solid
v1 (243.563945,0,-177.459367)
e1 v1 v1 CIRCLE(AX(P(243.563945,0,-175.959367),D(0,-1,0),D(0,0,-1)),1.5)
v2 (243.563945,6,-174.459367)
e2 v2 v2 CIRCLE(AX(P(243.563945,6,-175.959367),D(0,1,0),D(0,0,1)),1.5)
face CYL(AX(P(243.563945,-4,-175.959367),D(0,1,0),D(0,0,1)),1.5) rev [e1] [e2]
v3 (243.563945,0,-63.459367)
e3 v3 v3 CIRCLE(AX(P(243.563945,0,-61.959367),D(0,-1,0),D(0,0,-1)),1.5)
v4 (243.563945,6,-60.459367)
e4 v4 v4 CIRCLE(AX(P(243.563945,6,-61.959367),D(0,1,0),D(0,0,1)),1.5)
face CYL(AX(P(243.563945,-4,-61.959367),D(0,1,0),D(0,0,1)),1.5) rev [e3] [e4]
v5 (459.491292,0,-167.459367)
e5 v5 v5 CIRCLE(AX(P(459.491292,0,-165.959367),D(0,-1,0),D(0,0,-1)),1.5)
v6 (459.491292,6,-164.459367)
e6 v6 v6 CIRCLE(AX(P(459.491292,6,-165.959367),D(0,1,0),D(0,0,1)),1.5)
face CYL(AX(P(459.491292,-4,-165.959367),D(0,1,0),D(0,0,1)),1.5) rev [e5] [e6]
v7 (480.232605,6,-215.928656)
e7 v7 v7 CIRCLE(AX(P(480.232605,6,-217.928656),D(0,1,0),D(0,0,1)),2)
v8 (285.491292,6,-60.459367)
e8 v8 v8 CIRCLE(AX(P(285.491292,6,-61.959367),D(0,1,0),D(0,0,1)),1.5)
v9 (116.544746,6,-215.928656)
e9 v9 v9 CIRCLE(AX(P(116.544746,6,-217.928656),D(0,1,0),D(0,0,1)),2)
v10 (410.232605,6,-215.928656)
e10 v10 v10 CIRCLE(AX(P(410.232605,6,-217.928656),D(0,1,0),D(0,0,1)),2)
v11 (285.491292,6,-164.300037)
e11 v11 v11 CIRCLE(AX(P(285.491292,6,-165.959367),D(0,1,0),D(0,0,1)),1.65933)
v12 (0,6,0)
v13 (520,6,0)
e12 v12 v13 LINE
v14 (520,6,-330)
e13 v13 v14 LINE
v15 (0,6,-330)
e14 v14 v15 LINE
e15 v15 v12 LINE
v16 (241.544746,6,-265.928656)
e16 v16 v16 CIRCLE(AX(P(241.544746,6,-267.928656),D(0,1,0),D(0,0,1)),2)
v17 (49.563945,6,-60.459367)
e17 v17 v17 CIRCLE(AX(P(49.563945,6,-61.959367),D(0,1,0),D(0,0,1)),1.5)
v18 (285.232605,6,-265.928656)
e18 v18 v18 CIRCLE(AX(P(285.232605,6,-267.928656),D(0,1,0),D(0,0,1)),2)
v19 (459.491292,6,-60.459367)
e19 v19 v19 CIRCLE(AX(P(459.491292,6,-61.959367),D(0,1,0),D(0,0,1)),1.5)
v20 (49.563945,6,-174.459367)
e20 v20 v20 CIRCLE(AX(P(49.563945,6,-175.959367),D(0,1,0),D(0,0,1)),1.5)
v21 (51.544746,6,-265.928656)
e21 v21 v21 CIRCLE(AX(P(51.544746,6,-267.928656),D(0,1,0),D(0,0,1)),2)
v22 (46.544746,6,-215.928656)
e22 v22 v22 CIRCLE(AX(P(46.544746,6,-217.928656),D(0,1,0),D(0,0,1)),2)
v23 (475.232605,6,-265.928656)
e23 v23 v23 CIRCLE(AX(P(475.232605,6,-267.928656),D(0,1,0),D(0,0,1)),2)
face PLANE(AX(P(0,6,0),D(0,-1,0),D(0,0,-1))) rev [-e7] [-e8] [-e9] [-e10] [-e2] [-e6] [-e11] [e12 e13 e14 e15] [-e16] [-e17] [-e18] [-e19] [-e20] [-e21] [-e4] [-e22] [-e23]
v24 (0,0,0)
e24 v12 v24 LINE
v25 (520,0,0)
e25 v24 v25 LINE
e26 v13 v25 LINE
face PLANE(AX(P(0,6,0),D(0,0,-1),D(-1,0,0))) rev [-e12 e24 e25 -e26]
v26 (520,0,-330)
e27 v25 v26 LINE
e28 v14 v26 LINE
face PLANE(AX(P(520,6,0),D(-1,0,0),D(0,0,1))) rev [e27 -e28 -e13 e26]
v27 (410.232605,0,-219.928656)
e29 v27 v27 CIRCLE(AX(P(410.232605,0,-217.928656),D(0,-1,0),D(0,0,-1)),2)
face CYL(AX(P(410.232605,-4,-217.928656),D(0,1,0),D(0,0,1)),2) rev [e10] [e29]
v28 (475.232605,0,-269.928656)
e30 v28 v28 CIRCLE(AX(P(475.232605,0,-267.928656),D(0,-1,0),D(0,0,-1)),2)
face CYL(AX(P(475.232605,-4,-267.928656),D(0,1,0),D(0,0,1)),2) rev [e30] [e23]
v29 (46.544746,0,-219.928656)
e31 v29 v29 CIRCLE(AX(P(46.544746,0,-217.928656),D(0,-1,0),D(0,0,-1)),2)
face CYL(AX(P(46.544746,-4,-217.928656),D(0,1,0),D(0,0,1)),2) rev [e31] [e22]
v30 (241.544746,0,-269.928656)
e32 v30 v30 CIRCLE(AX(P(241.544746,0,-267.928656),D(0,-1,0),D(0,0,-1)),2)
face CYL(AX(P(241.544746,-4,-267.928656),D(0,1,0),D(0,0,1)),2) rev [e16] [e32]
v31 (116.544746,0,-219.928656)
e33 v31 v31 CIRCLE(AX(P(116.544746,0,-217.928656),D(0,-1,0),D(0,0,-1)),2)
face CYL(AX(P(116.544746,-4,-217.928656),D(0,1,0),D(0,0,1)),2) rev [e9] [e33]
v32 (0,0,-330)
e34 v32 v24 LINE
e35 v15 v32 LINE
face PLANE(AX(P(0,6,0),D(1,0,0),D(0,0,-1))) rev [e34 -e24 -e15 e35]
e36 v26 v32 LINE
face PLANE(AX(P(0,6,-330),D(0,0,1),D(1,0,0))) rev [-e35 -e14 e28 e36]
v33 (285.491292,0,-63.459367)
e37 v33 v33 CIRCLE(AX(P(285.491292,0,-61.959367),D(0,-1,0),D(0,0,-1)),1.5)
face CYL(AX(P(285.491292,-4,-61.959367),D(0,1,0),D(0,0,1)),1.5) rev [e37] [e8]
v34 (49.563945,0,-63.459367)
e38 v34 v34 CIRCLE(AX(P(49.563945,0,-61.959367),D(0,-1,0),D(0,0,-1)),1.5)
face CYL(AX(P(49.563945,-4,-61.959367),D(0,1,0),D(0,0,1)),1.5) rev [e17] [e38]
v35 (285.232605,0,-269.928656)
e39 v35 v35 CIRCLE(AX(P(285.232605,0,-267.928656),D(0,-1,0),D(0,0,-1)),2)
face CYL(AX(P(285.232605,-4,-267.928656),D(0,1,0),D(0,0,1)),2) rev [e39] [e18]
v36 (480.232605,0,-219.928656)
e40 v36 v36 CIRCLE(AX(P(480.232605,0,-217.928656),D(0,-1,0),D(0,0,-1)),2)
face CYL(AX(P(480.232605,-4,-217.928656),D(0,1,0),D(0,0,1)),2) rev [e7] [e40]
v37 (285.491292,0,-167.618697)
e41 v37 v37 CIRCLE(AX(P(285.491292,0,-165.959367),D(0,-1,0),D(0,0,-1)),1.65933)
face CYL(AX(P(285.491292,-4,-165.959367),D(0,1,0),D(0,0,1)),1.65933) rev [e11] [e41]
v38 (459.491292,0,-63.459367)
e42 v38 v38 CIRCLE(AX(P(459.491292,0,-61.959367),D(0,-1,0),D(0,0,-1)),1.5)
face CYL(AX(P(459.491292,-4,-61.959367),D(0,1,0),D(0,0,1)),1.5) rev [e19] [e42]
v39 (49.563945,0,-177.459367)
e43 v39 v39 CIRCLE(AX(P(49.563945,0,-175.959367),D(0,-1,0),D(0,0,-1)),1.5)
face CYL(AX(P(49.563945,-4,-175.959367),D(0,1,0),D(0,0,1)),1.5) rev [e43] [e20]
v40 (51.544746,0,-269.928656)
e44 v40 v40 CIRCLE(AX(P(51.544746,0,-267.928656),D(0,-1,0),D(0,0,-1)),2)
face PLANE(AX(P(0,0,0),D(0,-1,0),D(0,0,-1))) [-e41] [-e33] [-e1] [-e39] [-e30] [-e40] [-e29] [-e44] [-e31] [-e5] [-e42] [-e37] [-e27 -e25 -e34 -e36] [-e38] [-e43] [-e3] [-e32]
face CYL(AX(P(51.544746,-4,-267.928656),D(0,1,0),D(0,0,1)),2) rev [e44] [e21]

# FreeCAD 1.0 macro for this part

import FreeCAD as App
import Part
import Sketcher
Q = App.Units.Quantity

doc = App.newDocument("Part")
body = doc.addObject("PartDesign::Body", "Body")

sketch1 = body.newObject("Sketcher::SketchObject", "Sketch")
sketch1.AttachmentSupport = (doc.getObject("XZ_Plane"), [""])
sketch1.MapMode = "FlatFace"
sketch1.addGeometry(Part.LineSegment(App.Vector(0, -330, 0), App.Vector(0, 0, 0)), False)
sketch1.addGeometry(Part.LineSegment(App.Vector(0, 0, 0), App.Vector(520, 0, 0)), False)
sketch1.addGeometry(Part.LineSegment(App.Vector(520, 0, 0), App.Vector(520, -330, 0)), False)
sketch1.addGeometry(Part.LineSegment(App.Vector(520, -330, 0), App.Vector(0, -330, 0)), False)
sketch1.addConstraint(Sketcher.Constraint("Coincident", 0, 2, 1, 1))
sketch1.addConstraint(Sketcher.Constraint("Coincident", 1, 2, 2, 1))
sketch1.addConstraint(Sketcher.Constraint("Coincident", 2, 2, 3, 1))
sketch1.addConstraint(Sketcher.Constraint("Coincident", 3, 2, 0, 1))
sketch1.addConstraint(Sketcher.Constraint("Vertical", 0))
sketch1.addConstraint(Sketcher.Constraint("Horizontal", 1))
sketch1.addConstraint(Sketcher.Constraint("Vertical", 2))
sketch1.addConstraint(Sketcher.Constraint("Horizontal", 3))
sketch1.addConstraint(Sketcher.Constraint("Coincident", 0, 2, -1, 1))
sketch1.addConstraint(Sketcher.Constraint("DistanceX", 1, 1, 1, 2, Q("520 mm")))
sketch1.addConstraint(Sketcher.Constraint("DistanceY", 0, 1, 0, 2, Q("330 mm")))
pad1 = body.newObject("PartDesign::Pad", "Pad")
pad1.Profile = sketch1
pad1.Length = 6
pad1.Reversed = True

sketch2 = body.newObject("Sketcher::SketchObject", "Sketch001")
sketch2.AttachmentSupport = (doc.getObject("XZ_Plane"), [""])
sketch2.MapMode = "FlatFace"
sketch2.AttachmentOffset = App.Placement(App.Vector(0, 0, -6), App.Rotation())
sketch2.addGeometry(Part.Circle(App.Vector(475.2, -267.9, 0), App.Vector(0, 0, 1), 2), False)
sketch2.addGeometry(Part.Circle(App.Vector(480.2, -217.9, 0), App.Vector(0, 0, 1), 2), False)
sketch2.addGeometry(Part.Circle(App.Vector(410.2, -217.9, 0), App.Vector(0, 0, 1), 2), False)
sketch2.addGeometry(Part.Circle(App.Vector(285.2, -267.9, 0), App.Vector(0, 0, 1), 2), False)
sketch2.addGeometry(Part.Circle(App.Vector(241.5, -267.9, 0), App.Vector(0, 0, 1), 2), False)
sketch2.addGeometry(Part.Circle(App.Vector(51.5, -267.9, 0), App.Vector(0, 0, 1), 2), False)
sketch2.addGeometry(Part.Circle(App.Vector(46.5, -217.9, 0), App.Vector(0, 0, 1), 2), False)
sketch2.addGeometry(Part.Circle(App.Vector(116.5, -217.9, 0), App.Vector(0, 0, 1), 2), False)
sketch2.addGeometry(Part.Circle(App.Vector(459.5, -166, 0), App.Vector(0, 0, 1), 1.5), False)
sketch2.addGeometry(Part.Circle(App.Vector(459.5, -62, 0), App.Vector(0, 0, 1), 1.5), False)
sketch2.addGeometry(Part.Circle(App.Vector(285.5, -62, 0), App.Vector(0, 0, 1), 1.5), False)
sketch2.addGeometry(Part.Circle(App.Vector(285.5, -166, 0), App.Vector(0, 0, 1), 1.7), False)
sketch2.addGeometry(Part.Circle(App.Vector(243.6, -176, 0), App.Vector(0, 0, 1), 1.5), False)
sketch2.addGeometry(Part.Circle(App.Vector(243.6, -62, 0), App.Vector(0, 0, 1), 1.5), False)
sketch2.addGeometry(Part.Circle(App.Vector(49.6, -62, 0), App.Vector(0, 0, 1), 1.5), False)
sketch2.addGeometry(Part.Circle(App.Vector(49.6, -176, 0), App.Vector(0, 0, 1), 1.5), False)
sketch2.addConstraint(Sketcher.Constraint("Equal", 0, 1))
sketch2.addConstraint(Sketcher.Constraint("Equal", 1, 2))
sketch2.addConstraint(Sketcher.Constraint("Equal", 2, 3))
sketch2.addConstraint(Sketcher.Constraint("Equal", 3, 4))
sketch2.addConstraint(Sketcher.Constraint("Equal", 4, 5))
sketch2.addConstraint(Sketcher.Constraint("Equal", 5, 6))
sketch2.addConstraint(Sketcher.Constraint("Equal", 6, 7))
sketch2.addConstraint(Sketcher.Constraint("Equal", 8, 9))
sketch2.addConstraint(Sketcher.Constraint("Equal", 9, 10))
sketch2.addConstraint(Sketcher.Constraint("Equal", 10, 12))
sketch2.addConstraint(Sketcher.Constraint("Equal", 12, 13))
sketch2.addConstraint(Sketcher.Constraint("Equal", 13, 14))
sketch2.addConstraint(Sketcher.Constraint("Equal", 14, 15))
sketch2.addConstraint(Sketcher.Constraint("Horizontal", 1, 3, 2, 3))
sketch2.addConstraint(Sketcher.Constraint("Horizontal", 0, 3, 3, 3))
sketch2.addConstraint(Sketcher.Constraint("Horizontal", 3, 3, 4, 3))
sketch2.addConstraint(Sketcher.Constraint("Horizontal", 4, 3, 5, 3))
sketch2.addConstraint(Sketcher.Constraint("Horizontal", 2, 3, 6, 3))
sketch2.addConstraint(Sketcher.Constraint("Horizontal", 6, 3, 7, 3))
sketch2.addConstraint(Sketcher.Constraint("Horizontal", 9, 3, 10, 3))
sketch2.addConstraint(Sketcher.Constraint("Horizontal", 8, 3, 11, 3))
sketch2.addConstraint(Sketcher.Constraint("Horizontal", 10, 3, 13, 3))
sketch2.addConstraint(Sketcher.Constraint("Horizontal", 13, 3, 14, 3))
sketch2.addConstraint(Sketcher.Constraint("Horizontal", 12, 3, 15, 3))
sketch2.addConstraint(Sketcher.Constraint("Vertical", 8, 3, 9, 3))
sketch2.addConstraint(Sketcher.Constraint("Vertical", 10, 3, 11, 3))
sketch2.addConstraint(Sketcher.Constraint("Vertical", 12, 3, 13, 3))
sketch2.addConstraint(Sketcher.Constraint("Vertical", 14, 3, 15, 3))
sketch2.addConstraint(Sketcher.Constraint("Diameter", 0, Q("4 mm")))
sketch2.addConstraint(Sketcher.Constraint("Diameter", 8, Q("3 mm")))
sketch2.addConstraint(Sketcher.Constraint("DistanceX", 0, 3, 1, 3, Q("5 mm")))
sketch2.addConstraint(Sketcher.Constraint("DistanceY", 0, 3, 1, 3, Q("50 mm")))
sketch2.addConstraint(Sketcher.Constraint("DistanceX", 2, 3, 1, 3, Q("70 mm")))
sketch2.addConstraint(Sketcher.Constraint("DistanceX", 3, 3, 2, 3, Q("125 mm")))
sketch2.addConstraint(Sketcher.Constraint("DistanceX", 5, 3, 4, 3, Q("190 mm")))
sketch2.addConstraint(Sketcher.Constraint("DistanceX", 6, 3, 5, 3, Q("5 mm")))
sketch2.addConstraint(Sketcher.Constraint("DistanceX", 6, 3, 7, 3, Q("70 mm")))
sketch2.addConstraint(Sketcher.Constraint("DistanceY", 8, 3, 9, 3, Q("104 mm")))
sketch2.addConstraint(Sketcher.Constraint("DistanceX", 10, 3, 9, 3, Q("174 mm")))
sketch2.addConstraint(Sketcher.Constraint("DistanceY", 12, 3, 11, 3, Q("10 mm")))
sketch2.addConstraint(Sketcher.Constraint("DistanceX", 14, 3, 13, 3, Q("194 mm")))
sketch2.addConstraint(Sketcher.Constraint("Diameter", 11, Q("3.318661 mm")))
sketch2.addConstraint(Sketcher.Constraint("DistanceX", 4, 3, 12, 3, Q("2.0192 mm")))
sketch2.addConstraint(Sketcher.Constraint("DistanceX", -1, 1, 8, 3, Q("459.491292 mm")))
sketch2.addConstraint(Sketcher.Constraint("DistanceX", 4, 3, 3, 3, Q("43.687859 mm")))
sketch2.addConstraint(Sketcher.Constraint("DistanceY", 1, 3, 8, 3, Q("51.969289 mm")))
sketch2.addConstraint(Sketcher.Constraint("DistanceX", -1, 1, 0, 3, Q("475.232605 mm")))
sketch2.addConstraint(Sketcher.Constraint("DistanceY", 0, 3, -1, 1, Q("267.928656 mm")))
pocket1 = body.newObject("PartDesign::Pocket", "Pocket")
pocket1.Profile = sketch2
pocket1.Length = 10
pocket1.Reversed = True

doc.recompute()
